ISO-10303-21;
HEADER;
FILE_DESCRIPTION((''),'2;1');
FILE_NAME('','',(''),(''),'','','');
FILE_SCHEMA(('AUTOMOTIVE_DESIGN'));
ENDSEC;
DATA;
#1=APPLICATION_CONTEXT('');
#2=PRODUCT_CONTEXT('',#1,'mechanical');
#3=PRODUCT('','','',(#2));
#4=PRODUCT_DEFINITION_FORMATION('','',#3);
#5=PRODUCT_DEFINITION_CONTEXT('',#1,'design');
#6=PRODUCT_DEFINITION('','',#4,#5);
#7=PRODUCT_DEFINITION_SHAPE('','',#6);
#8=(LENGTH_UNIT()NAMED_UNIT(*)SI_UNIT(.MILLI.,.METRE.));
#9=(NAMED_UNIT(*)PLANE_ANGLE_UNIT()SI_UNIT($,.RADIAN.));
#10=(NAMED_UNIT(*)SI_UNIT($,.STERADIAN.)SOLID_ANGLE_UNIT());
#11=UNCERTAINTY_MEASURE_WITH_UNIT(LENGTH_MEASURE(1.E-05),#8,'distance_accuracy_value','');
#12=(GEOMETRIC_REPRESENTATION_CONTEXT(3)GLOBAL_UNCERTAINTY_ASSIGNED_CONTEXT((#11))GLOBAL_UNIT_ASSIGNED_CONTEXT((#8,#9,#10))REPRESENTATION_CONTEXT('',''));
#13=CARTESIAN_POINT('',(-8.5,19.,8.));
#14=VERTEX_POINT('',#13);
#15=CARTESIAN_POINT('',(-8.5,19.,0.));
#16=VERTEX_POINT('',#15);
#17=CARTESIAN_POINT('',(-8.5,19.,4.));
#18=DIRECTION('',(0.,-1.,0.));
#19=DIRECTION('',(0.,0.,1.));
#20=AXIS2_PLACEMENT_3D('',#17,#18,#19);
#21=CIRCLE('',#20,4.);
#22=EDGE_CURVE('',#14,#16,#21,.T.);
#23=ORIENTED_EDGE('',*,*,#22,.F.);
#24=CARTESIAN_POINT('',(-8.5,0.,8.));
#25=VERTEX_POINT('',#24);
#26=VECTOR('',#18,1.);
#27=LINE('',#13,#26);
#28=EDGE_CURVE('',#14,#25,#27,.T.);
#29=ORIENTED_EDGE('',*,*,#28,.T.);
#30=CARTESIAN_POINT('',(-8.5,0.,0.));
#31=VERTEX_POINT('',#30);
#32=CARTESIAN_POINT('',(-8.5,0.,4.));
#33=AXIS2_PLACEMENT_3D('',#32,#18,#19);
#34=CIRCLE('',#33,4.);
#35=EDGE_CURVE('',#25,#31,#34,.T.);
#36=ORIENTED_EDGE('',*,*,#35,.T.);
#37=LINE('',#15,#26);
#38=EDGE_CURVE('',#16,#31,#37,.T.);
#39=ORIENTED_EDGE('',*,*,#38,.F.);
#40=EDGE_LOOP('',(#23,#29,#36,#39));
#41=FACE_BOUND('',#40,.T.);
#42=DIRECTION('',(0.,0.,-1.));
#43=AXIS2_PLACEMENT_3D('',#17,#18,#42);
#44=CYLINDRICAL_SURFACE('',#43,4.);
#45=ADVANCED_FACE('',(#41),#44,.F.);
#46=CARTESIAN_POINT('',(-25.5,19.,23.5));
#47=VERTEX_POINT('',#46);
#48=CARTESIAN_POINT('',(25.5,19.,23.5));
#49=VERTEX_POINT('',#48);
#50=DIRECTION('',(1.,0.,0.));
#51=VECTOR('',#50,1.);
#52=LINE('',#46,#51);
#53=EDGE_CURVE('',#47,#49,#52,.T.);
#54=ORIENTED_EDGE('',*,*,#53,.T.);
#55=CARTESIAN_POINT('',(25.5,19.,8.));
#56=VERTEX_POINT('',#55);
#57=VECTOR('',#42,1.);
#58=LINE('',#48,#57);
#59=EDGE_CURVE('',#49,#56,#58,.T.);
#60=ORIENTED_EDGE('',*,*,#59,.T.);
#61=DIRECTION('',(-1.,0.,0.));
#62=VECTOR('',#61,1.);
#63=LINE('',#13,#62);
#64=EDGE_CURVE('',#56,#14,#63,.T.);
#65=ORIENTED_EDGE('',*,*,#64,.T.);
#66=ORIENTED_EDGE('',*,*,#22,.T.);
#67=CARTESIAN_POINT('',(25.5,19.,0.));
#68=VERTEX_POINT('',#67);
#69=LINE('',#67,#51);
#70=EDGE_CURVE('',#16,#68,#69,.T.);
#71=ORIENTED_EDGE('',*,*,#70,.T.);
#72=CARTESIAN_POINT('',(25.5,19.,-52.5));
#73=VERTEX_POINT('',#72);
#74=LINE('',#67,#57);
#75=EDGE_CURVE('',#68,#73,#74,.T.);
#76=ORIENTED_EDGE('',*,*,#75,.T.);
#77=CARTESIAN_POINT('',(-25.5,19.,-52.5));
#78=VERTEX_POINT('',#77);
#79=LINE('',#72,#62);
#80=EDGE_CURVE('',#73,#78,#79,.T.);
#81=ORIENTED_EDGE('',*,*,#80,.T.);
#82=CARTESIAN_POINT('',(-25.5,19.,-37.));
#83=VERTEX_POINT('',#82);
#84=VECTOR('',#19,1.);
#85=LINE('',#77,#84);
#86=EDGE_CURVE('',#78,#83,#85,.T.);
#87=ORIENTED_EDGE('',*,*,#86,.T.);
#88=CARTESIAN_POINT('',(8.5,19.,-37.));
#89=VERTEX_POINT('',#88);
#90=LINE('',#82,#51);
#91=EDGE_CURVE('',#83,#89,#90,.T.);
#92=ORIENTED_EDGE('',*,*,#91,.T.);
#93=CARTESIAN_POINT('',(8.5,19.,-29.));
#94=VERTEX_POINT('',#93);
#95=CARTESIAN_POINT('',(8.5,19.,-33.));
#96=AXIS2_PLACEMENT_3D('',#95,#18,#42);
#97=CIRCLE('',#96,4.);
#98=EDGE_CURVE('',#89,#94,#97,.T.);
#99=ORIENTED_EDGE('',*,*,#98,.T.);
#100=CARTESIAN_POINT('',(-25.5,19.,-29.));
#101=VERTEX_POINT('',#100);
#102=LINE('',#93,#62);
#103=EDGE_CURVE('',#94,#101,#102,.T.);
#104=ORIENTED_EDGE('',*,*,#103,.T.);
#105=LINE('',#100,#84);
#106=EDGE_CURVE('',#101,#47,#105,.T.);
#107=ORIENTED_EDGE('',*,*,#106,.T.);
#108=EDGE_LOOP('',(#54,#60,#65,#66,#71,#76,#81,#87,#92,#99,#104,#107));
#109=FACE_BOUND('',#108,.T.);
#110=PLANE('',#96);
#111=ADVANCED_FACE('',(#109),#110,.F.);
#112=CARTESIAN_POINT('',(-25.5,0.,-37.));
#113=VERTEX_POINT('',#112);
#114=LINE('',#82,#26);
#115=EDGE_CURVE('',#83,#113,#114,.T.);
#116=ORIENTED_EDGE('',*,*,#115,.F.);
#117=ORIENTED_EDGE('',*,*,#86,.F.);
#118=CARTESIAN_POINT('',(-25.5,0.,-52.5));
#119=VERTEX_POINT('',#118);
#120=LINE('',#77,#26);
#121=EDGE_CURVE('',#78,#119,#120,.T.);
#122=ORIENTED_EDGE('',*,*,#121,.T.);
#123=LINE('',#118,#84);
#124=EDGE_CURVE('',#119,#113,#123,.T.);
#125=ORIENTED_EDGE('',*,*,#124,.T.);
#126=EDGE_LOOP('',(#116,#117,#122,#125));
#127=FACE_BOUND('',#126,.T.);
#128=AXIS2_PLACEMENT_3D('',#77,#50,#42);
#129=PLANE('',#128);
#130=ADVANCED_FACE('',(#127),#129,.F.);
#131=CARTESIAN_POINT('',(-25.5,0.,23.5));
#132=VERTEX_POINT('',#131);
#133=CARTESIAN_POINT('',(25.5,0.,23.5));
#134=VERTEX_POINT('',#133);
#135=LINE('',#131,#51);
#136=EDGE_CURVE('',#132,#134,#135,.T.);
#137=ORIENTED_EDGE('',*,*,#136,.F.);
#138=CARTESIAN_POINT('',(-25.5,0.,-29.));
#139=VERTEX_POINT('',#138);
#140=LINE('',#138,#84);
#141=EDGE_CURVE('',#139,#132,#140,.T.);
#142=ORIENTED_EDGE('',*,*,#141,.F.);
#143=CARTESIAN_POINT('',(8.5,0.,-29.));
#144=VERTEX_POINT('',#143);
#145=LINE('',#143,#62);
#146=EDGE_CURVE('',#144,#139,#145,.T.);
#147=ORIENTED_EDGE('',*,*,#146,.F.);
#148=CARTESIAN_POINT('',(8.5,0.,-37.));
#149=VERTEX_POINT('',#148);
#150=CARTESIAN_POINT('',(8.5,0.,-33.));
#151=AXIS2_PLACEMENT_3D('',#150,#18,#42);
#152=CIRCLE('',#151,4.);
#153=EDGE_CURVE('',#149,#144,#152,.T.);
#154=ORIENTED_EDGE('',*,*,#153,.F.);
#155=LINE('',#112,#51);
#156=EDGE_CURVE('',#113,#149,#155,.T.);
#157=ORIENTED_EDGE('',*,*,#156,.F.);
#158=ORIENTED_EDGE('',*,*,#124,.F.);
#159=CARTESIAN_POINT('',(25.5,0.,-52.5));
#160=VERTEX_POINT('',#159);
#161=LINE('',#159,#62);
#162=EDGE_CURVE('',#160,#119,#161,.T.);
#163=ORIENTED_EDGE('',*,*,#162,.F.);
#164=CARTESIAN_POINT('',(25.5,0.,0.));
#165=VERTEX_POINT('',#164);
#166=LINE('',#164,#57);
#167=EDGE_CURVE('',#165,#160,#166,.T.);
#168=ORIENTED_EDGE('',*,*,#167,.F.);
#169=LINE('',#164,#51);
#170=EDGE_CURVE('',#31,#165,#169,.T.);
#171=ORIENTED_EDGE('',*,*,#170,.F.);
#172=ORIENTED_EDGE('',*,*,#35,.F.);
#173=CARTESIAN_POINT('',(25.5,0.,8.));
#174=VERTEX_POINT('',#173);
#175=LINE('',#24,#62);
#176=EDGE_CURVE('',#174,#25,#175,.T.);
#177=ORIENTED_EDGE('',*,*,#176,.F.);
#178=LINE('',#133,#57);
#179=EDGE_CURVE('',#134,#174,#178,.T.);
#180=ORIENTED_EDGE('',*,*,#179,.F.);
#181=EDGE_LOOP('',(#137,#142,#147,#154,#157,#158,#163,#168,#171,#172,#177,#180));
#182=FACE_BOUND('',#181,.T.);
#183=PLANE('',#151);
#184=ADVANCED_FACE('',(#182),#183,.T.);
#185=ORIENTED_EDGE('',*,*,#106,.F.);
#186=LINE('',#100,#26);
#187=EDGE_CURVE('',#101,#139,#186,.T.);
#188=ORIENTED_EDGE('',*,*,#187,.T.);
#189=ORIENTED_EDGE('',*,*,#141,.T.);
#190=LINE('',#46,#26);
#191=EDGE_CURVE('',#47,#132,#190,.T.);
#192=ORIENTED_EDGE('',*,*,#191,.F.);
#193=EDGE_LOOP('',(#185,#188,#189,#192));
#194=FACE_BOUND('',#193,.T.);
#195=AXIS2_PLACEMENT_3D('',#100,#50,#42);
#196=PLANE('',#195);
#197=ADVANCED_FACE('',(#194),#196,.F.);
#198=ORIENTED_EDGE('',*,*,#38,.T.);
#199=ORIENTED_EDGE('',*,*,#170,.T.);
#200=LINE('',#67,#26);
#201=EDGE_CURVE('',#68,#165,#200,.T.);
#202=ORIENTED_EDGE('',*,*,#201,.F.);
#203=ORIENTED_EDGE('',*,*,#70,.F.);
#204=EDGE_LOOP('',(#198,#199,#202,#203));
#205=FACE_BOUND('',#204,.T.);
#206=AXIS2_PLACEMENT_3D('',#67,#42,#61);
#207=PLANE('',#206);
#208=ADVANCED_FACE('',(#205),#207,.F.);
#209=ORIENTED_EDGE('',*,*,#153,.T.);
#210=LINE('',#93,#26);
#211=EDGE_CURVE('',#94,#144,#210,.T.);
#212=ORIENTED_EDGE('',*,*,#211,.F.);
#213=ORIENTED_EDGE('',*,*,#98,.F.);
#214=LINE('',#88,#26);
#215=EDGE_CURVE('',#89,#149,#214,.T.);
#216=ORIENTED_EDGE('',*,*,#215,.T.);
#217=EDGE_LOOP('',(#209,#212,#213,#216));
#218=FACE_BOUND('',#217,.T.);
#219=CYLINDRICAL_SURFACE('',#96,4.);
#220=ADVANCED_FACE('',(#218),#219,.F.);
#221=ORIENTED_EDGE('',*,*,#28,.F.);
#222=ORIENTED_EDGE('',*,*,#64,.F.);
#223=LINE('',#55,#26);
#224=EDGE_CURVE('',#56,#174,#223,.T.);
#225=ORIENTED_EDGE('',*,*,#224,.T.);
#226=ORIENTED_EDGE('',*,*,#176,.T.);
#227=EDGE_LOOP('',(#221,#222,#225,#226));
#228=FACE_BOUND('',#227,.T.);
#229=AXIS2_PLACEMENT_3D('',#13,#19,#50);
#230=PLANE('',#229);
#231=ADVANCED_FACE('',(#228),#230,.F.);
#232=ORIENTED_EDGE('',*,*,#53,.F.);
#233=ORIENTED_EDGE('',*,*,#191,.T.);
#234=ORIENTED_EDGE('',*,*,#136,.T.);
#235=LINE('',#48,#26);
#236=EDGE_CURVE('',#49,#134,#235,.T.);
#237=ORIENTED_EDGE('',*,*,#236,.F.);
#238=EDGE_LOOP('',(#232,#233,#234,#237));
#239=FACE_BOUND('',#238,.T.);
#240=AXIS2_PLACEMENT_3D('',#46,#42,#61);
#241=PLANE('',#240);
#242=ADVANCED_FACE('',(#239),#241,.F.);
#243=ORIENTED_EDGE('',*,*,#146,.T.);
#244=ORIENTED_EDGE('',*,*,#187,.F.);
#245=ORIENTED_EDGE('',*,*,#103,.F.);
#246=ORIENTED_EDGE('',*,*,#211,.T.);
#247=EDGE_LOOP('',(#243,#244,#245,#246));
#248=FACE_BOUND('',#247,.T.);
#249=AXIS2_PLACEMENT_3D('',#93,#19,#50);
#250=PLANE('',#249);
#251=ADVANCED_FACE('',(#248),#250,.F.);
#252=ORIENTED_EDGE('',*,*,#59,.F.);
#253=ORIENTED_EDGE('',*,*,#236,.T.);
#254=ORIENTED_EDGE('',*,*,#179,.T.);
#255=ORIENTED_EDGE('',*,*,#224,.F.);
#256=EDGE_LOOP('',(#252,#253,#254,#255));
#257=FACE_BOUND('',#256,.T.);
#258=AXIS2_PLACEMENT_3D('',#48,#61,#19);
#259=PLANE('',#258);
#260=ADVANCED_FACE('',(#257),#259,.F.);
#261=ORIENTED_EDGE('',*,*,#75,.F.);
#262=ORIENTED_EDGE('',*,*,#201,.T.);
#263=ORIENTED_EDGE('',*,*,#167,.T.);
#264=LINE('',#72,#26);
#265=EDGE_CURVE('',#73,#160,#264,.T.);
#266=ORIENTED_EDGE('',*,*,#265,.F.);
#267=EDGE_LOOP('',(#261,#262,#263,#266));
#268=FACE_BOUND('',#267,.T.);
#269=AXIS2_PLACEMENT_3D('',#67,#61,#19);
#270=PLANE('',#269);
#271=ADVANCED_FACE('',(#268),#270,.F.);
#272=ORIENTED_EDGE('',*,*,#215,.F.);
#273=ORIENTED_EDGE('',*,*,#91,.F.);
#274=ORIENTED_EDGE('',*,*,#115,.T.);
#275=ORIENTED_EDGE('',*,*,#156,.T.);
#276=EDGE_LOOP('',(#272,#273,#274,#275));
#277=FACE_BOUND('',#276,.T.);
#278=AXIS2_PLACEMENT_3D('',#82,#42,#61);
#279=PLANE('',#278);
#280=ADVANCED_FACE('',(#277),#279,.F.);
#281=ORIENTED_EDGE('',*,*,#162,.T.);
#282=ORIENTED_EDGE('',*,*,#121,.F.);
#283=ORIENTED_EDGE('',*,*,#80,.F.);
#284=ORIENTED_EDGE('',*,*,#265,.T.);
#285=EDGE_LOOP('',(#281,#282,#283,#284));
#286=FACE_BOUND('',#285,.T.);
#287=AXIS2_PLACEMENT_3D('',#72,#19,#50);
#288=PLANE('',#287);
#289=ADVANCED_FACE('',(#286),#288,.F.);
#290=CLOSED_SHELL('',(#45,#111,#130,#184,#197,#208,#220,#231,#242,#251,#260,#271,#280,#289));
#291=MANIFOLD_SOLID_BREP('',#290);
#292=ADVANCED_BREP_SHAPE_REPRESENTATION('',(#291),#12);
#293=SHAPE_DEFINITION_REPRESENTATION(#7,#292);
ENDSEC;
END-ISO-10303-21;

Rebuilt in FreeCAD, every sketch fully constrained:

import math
import FreeCAD as App
import Part
import Sketcher
from FreeCAD import Vector

doc = App.newDocument("Part")
body = doc.addObject("PartDesign::Body", "Body")

sketch1 = body.newObject("Sketcher::SketchObject", "Sketch")
sketch1.AttachmentSupport = (doc.getObject("XZ_Plane"), [""])
sketch1.MapMode = "FlatFace"
sketch1.addGeometry([
    Part.LineSegment(Vector(-8.5, 0, 0), Vector(25.5, 0, 0)),
    Part.LineSegment(Vector(25.5, 0, 0), Vector(25.5, -52.5, 0)),
    Part.LineSegment(Vector(25.5, -52.5, 0), Vector(-25.5, -52.5, 0)),
    Part.LineSegment(Vector(-25.5, -52.5, 0), Vector(-25.5, -37, 0)),
    Part.LineSegment(Vector(-25.5, -37, 0), Vector(8.5, -37, 0)),
    Part.ArcOfCircle(Part.Circle(Vector(8.5, -33, 0), Vector(0, 0, 1), 4), math.radians(-90), math.radians(90)),
    Part.LineSegment(Vector(8.5, -29, 0), Vector(-25.5, -29, 0)),
    Part.LineSegment(Vector(-25.5, -29, 0), Vector(-25.5, 23.5, 0)),
    Part.LineSegment(Vector(-25.5, 23.5, 0), Vector(25.5, 23.5, 0)),
    Part.LineSegment(Vector(25.5, 23.5, 0), Vector(25.5, 8, 0)),
    Part.LineSegment(Vector(25.5, 8, 0), Vector(-8.5, 8, 0)),
    Part.ArcOfCircle(Part.Circle(Vector(-8.5, 4, 0), Vector(0, 0, 1), 4), math.radians(90), math.radians(270)),
], False)
sketch1.addConstraint([
    Sketcher.Constraint("Coincident", 0, 2, 1, 1),
    Sketcher.Constraint("Coincident", 1, 2, 2, 1),
    Sketcher.Constraint("Coincident", 2, 2, 3, 1),
    Sketcher.Constraint("Coincident", 3, 2, 4, 1),
    Sketcher.Constraint("Tangent", 4, 2, 5, 1),
    Sketcher.Constraint("Tangent", 5, 2, 6, 1),
    Sketcher.Constraint("Coincident", 6, 2, 7, 1),
    Sketcher.Constraint("Coincident", 7, 2, 8, 1),
    Sketcher.Constraint("Coincident", 8, 2, 9, 1),
    Sketcher.Constraint("Coincident", 9, 2, 10, 1),
    Sketcher.Constraint("Tangent", 10, 2, 11, 1),
    Sketcher.Constraint("Tangent", 11, 2, 0, 1),
    Sketcher.Constraint("Horizontal", 0),
    Sketcher.Constraint("Vertical", 1),
    Sketcher.Constraint("Horizontal", 2),
    Sketcher.Constraint("Vertical", 3),
    Sketcher.Constraint("Horizontal", 4),
    Sketcher.Constraint("Horizontal", 6),
    Sketcher.Constraint("Vertical", 7),
    Sketcher.Constraint("Horizontal", 8),
    Sketcher.Constraint("Vertical", 9),
    Sketcher.Constraint("Horizontal", 10),
    Sketcher.Constraint("Equal", 5, 11),
    Sketcher.Constraint("PointOnObject", 0, 2, -1),
    Sketcher.Constraint("Vertical", 3, 2, 6, 2),
    Sketcher.Constraint("Vertical", 1, 2, 8, 2),
    Sketcher.Constraint("Equal", 0, 4),
    Sketcher.Constraint("Equal", 1, 7),
    Sketcher.Constraint("Radius", 5, 4.0),
    Sketcher.Constraint("DistanceX", 0, 1, 0, 2, 34.0),
    Sketcher.Constraint("DistanceX", 2, 2, 2, 1, 51.0),
    Sketcher.Constraint("DistanceY", 1, 2, 1, 1, 52.5),
    Sketcher.Constraint("DistanceY", 3, 1, 3, 2, 15.5),
    Sketcher.Constraint("DistanceX", -1, 1, 5, 3, 8.5),
])
pad1 = body.newObject("PartDesign::Pad", "Pad")
pad1.Profile = sketch1
pad1.Length = 19
pad1.Reversed = True

doc.recompute()
